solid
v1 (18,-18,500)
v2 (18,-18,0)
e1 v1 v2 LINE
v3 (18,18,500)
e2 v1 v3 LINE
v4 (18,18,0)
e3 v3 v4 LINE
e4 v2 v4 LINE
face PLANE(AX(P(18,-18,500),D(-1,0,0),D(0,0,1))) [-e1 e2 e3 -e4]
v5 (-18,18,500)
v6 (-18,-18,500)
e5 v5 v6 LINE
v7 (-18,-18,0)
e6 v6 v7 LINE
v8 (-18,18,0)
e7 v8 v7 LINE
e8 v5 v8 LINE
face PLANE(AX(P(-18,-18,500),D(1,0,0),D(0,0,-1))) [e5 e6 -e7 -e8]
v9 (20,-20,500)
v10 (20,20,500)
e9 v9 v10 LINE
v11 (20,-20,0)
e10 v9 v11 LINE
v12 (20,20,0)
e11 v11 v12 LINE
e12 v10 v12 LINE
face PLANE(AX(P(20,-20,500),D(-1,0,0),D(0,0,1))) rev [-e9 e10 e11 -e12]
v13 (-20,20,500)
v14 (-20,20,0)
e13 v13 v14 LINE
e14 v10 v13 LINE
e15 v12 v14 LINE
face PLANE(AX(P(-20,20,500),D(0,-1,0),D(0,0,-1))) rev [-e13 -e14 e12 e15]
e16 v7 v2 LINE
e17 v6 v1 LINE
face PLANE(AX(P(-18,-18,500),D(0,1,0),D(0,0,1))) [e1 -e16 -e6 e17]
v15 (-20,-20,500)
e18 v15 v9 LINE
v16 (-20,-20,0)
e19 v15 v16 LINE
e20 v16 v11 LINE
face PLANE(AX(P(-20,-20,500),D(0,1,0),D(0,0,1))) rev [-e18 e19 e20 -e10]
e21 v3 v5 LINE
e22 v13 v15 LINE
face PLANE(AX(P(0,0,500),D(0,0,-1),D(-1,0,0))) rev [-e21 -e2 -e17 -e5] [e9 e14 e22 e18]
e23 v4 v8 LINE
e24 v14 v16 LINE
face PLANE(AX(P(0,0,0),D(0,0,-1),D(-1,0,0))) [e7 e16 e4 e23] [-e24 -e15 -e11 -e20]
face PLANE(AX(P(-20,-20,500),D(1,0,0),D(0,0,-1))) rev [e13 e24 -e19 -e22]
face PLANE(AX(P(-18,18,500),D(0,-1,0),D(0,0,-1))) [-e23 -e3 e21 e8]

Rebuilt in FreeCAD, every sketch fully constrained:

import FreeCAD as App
import Part
import Sketcher
from FreeCAD import Vector
Q = App.Units.Quantity

doc = App.newDocument("Part")
body = doc.addObject("PartDesign::Body", "Body")

# Sketch on XY plane
sketch1 = doc.addObject("Sketcher::SketchObject", "Sketch")
body.addObject(sketch1)
sketch1.AttachmentSupport = (doc.XY_Plane, [""])
sketch1.MapMode = "FlatFace"
sketch1.addGeometry([
    Part.LineSegment(Vector(-20, 20, 0), Vector(-20, -20, 0)),  # 0
    Part.LineSegment(Vector(-20, -20, 0), Vector(20, -20, 0)),  # 1
    Part.LineSegment(Vector(20, -20, 0), Vector(20, 20, 0)),  # 2
    Part.LineSegment(Vector(20, 20, 0), Vector(-20, 20, 0)),  # 3
    Part.LineSegment(Vector(18, -18, 0), Vector(-18, -18, 0)),  # 4
    Part.LineSegment(Vector(-18, -18, 0), Vector(-18, 18, 0)),  # 5
    Part.LineSegment(Vector(-18, 18, 0), Vector(18, 18, 0)),  # 6
    Part.LineSegment(Vector(18, 18, 0), Vector(18, -18, 0)),  # 7
], False)
sketch1.addConstraint([
    Sketcher.Constraint("Coincident", 0, 2, 1, 1),
    Sketcher.Constraint("Coincident", 1, 2, 2, 1),
    Sketcher.Constraint("Coincident", 2, 2, 3, 1),
    Sketcher.Constraint("Coincident", 3, 2, 0, 1),
    Sketcher.Constraint("Coincident", 4, 2, 5, 1),
    Sketcher.Constraint("Coincident", 5, 2, 6, 1),
    Sketcher.Constraint("Coincident", 6, 2, 7, 1),
    Sketcher.Constraint("Coincident", 7, 2, 4, 1),
    Sketcher.Constraint("Vertical", 0),
    Sketcher.Constraint("Horizontal", 1),
    Sketcher.Constraint("Vertical", 2),
    Sketcher.Constraint("Horizontal", 3),
    Sketcher.Constraint("Horizontal", 4),
    Sketcher.Constraint("Vertical", 5),
    Sketcher.Constraint("Horizontal", 6),
    Sketcher.Constraint("Vertical", 7),
    Sketcher.Constraint("Symmetric", 0, 2, 2, 2, -1, 1),
    Sketcher.Constraint("Symmetric", 4, 2, 6, 2, -1, 1),
    Sketcher.Constraint("Equal", 3, 0),
    Sketcher.Constraint("Equal", 6, 5),
    Sketcher.Constraint("DistanceX", 1, 1, 1, 2, Q("40 mm")),
    Sketcher.Constraint("DistanceX", 4, 2, 4, 1, Q("36 mm")),
])
pad1 = doc.addObject("PartDesign::Pad", "Pad")
body.addObject(pad1)
pad1.Profile = sketch1
pad1.Length = 500

doc.recompute()
